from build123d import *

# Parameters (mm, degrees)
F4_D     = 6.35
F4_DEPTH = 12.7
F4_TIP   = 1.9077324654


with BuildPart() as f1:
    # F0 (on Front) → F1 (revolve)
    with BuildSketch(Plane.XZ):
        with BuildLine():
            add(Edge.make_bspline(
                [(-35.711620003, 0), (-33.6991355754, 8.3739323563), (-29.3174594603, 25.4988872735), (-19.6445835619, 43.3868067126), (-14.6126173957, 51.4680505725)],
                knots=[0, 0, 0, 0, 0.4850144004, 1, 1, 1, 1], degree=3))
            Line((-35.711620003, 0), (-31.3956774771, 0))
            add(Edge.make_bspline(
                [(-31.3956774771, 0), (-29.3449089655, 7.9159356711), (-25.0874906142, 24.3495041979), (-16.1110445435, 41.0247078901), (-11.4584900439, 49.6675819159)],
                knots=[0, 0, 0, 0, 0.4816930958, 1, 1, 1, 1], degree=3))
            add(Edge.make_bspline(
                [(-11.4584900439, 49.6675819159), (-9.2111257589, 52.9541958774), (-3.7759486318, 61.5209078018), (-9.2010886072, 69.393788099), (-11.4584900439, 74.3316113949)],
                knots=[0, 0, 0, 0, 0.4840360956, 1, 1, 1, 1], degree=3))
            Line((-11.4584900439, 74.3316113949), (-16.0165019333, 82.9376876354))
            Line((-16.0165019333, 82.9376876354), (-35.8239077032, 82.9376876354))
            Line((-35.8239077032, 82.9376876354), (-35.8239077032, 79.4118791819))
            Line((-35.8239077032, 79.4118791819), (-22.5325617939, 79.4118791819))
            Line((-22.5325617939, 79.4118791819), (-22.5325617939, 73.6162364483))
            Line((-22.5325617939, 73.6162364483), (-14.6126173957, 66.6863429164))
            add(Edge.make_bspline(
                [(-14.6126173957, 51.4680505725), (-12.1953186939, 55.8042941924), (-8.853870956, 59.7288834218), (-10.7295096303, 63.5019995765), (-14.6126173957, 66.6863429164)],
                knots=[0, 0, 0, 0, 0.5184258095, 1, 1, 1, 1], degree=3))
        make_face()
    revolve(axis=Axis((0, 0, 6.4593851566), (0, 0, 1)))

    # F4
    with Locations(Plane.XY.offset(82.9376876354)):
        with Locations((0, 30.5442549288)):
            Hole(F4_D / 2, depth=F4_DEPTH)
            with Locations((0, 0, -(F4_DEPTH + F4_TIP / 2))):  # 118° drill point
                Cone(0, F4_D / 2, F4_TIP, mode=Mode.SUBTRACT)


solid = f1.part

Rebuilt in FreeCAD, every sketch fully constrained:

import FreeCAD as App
import Part
import Sketcher
from FreeCAD import Vector
Q = App.Units.Quantity

doc = App.newDocument("Part")
params = doc.addObject("Spreadsheet::Sheet", "Params")
for row, (alias, value) in enumerate([
    ("revolution_angle", "360 deg"),
    ("sketch2_diameter", "0.25 in"),
    ("hole_diameter", "0.25 in"),
    ("hole_depth", "0.5 in"),
], start=1):
    params.set(f"A{row}", alias)
    params.set(f"B{row}", "=" + value)
    params.setAlias(f"B{row}", alias)

body = doc.addObject("PartDesign::Body", "Body")

# Sketch on XZ plane
sketch1 = doc.addObject("Sketcher::SketchObject", "Sketch")
body.addObject(sketch1)
sketch1.AttachmentSupport = (doc.XZ_Plane, [""])
sketch1.MapMode = "FlatFace"
sketch1.addGeometry(Part.BSplineCurve([Vector(-35.71162, 0, 0), Vector(-33.699136, 8.373932, 0), Vector(-29.317459, 25.498887, 0), Vector(-19.644584, 43.386807, 0), Vector(-14.612617, 51.468051, 0)], [4, 1, 4], [0, 0.4850144, 1], False, 3, [1, 1, 1, 1, 1], False), False)
sketch1.addGeometry(Part.LineSegment(Vector(-35.71162, 0, 0), Vector(-31.395677, 0, 0)), False)
sketch1.addGeometry(Part.BSplineCurve([Vector(-31.395677, 0, 0), Vector(-29.344909, 7.915936, 0), Vector(-25.087491, 24.349504, 0), Vector(-16.111045, 41.024708, 0), Vector(-11.45849, 49.667582, 0)], [4, 1, 4], [0, 0.481693096, 1], False, 3, [1, 1, 1, 1, 1], False), False)
sketch1.addGeometry(Part.BSplineCurve([Vector(-11.45849, 49.667582, 0), Vector(-9.211126, 52.954196, 0), Vector(-3.775949, 61.520908, 0), Vector(-9.201089, 69.393788, 0), Vector(-11.45849, 74.331611, 0)], [4, 1, 4], [0, 0.484036096, 1], False, 3, [1, 1, 1, 1, 1], False), False)
sketch1.addGeometry(Part.LineSegment(Vector(-11.45849, 74.331611, 0), Vector(-16.016502, 82.937688, 0)), False)
sketch1.addGeometry(Part.LineSegment(Vector(-16.016502, 82.937688, 0), Vector(-35.823908, 82.937688, 0)), False)
sketch1.addGeometry(Part.LineSegment(Vector(-35.823908, 82.937688, 0), Vector(-35.823908, 79.411879, 0)), False)
sketch1.addGeometry(Part.LineSegment(Vector(-35.823908, 79.411879, 0), Vector(-22.532562, 79.411879, 0)), False)
sketch1.addGeometry(Part.LineSegment(Vector(-22.532562, 79.411879, 0), Vector(-22.532562, 73.616236, 0)), False)
sketch1.addGeometry(Part.LineSegment(Vector(-22.532562, 73.616236, 0), Vector(-14.612617, 66.686343, 0)), False)
sketch1.addGeometry(Part.BSplineCurve([Vector(-14.612617, 51.468051, 0), Vector(-12.195319, 55.804294, 0), Vector(-8.853871, 59.728883, 0), Vector(-10.72951, 63.502, 0), Vector(-14.612617, 66.686343, 0)], [4, 1, 4], [0, 0.518425809, 1], False, 3, [1, 1, 1, 1, 1], False), False)
sketch1.addConstraint(Sketcher.Constraint("Block", 0))
sketch1.addConstraint(Sketcher.Constraint("Block", 2))
sketch1.addConstraint(Sketcher.Constraint("Block", 3))
sketch1.addConstraint(Sketcher.Constraint("Block", 10))
sketch1.addConstraint(Sketcher.Constraint("Coincident", 0, 1, 1, 1))
sketch1.addConstraint(Sketcher.Constraint("Coincident", 1, 2, 2, 1))
sketch1.addConstraint(Sketcher.Constraint("Coincident", 3, 2, 4, 1))
sketch1.addConstraint(Sketcher.Constraint("Coincident", 4, 2, 5, 1))
sketch1.addConstraint(Sketcher.Constraint("Coincident", 5, 2, 6, 1))
sketch1.addConstraint(Sketcher.Constraint("Coincident", 6, 2, 7, 1))
sketch1.addConstraint(Sketcher.Constraint("Coincident", 7, 2, 8, 1))
sketch1.addConstraint(Sketcher.Constraint("Coincident", 8, 2, 9, 1))
sketch1.addConstraint(Sketcher.Constraint("Coincident", 9, 2, 10, 2))
sketch1.addConstraint(Sketcher.Constraint("Horizontal", 5))
sketch1.addConstraint(Sketcher.Constraint("Vertical", 6))
sketch1.addConstraint(Sketcher.Constraint("Horizontal", 7))
sketch1.addConstraint(Sketcher.Constraint("Vertical", 8))
sketch1.addConstraint(Sketcher.Constraint("DistanceY", 6, 2, 6, 1, Q("3.525808 mm")))
sketch1.addConstraint(Sketcher.Constraint("DistanceX", 4, 2, -1, 1, Q("16.016502 mm")))
sketch1.addConstraint(Sketcher.Constraint("DistanceX", 5, 2, 5, 1, Q("19.807406 mm")))
sketch1.addConstraint(Sketcher.Constraint("DistanceX", 7, 1, 7, 2, Q("13.291346 mm")))
sketch1.addConstraint(Sketcher.Constraint("DistanceY", 8, 2, 8, 1, Q("5.795643 mm")))
sketch1.addConstraint(Sketcher.Constraint("DistanceY", -1, 1, 6, 2, Q("79.411879 mm")))
revolution = doc.addObject("PartDesign::Revolution", "Revolution")
body.addObject(revolution)
revolution.Profile = sketch1
revolution.ReferenceAxis = (sketch1, ["V_Axis"])
revolution.setExpression("Angle", "Params.revolution_angle")

# Sketch on XY plane
sketch2 = doc.addObject("Sketcher::SketchObject", "Sketch001")
body.addObject(sketch2)
sketch2.AttachmentSupport = (doc.XY_Plane, [""])
sketch2.MapMode = "FlatFace"
sketch2.AttachmentOffset = App.Placement(Vector(0, 0, 82.937688), App.Rotation())
sketch2.addGeometry(Part.Circle(Vector(0, 30.5, 0), Vector(0, 0, 1), 3.2), False)
sketch2.addConstraint(Sketcher.Constraint("PointOnObject", 0, 3, -2))
sketch2.addConstraint(Sketcher.Constraint("Diameter", 0, Q("0.25 in")))
sketch2.addConstraint(Sketcher.Constraint("DistanceY", -1, 1, 0, 3, Q("30.544255 mm")))
sketch2.setExpression("Constraints[1]", "Params.sketch2_diameter")
doc.recompute()
hole = doc.addObject("PartDesign::Hole", "Hole")
body.addObject(hole)
hole.Profile = sketch2
hole.ThreadType = "None"
hole.setExpression("Diameter", "Params.hole_diameter")
hole.DepthType = "Dimension"
hole.setExpression("Depth", "Params.hole_depth")
hole.DrillPoint = "Angled"
hole.DrillPointAngle = 118

doc.recompute()
